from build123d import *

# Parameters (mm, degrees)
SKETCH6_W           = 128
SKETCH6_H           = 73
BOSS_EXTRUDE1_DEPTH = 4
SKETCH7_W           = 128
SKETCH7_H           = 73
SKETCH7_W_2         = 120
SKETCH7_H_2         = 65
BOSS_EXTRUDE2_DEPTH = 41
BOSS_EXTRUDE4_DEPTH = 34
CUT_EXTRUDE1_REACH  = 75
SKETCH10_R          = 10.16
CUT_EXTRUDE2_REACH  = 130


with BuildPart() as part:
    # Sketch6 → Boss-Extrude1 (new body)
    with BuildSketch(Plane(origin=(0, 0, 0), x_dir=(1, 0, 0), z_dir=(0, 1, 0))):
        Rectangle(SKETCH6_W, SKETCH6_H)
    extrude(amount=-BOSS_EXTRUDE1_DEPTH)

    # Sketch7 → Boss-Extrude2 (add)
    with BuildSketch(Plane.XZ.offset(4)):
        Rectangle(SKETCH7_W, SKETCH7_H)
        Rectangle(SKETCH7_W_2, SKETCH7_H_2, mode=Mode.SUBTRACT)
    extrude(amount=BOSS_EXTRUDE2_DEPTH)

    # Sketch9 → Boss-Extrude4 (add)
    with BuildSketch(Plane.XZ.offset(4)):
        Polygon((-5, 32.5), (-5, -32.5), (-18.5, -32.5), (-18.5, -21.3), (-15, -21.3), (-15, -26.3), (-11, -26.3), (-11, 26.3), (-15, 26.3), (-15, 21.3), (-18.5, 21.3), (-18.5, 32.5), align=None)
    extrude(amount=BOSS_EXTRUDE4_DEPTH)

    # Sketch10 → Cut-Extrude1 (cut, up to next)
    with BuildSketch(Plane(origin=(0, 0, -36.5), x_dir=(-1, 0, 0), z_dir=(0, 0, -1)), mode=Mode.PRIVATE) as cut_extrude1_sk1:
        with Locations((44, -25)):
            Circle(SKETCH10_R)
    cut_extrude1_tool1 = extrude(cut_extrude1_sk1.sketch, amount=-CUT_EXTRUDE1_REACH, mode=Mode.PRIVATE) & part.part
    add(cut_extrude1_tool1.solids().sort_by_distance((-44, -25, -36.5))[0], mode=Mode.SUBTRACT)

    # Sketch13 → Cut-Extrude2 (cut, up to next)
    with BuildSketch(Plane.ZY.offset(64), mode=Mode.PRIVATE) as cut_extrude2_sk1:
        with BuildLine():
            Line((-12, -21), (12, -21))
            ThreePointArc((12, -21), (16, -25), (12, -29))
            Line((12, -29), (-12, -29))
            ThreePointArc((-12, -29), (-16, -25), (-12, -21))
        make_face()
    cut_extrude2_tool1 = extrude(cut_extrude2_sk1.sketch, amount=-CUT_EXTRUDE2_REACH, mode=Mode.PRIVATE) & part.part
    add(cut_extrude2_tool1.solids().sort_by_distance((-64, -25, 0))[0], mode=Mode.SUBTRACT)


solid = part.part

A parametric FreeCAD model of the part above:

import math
import FreeCAD as App
import Part
import Sketcher
from FreeCAD import Vector

doc = App.newDocument("Part")
params = doc.addObject("Spreadsheet::Sheet", "Params")
for row, (alias, value) in enumerate([
    ("sketch1_width", "128 mm"),
    ("sketch1_height", "73 mm"),
    ("pad1_length", "4 mm"),
    ("sketch2_width", "128 mm"),
    ("sketch2_width2", "120 mm"),
    ("sketch2_height", "73 mm"),
    ("sketch2_height2", "65 mm"),
    ("pad2_length", "41 mm"),
    ("sketch3_width", "4 mm"),
    ("sketch3_height", "65 mm"),
    ("sketch3_height2", "5 mm"),
    ("sketch3_width2", "13.5 mm"),
    ("sketch3_width3", "3.5 mm"),
    ("pad3_length", "34 mm"),
    ("sketch4_diameter", "20.32 mm"),
    ("sketch5_radius", "4 mm"),
    ("sketch5_height", "24 mm"),
], start=1):
    params.set(f"A{row}", alias)
    params.set(f"B{row}", "=" + value)
    params.setAlias(f"B{row}", alias)

body = doc.addObject("PartDesign::Body", "Body")

# Sketch on XZ plane
sketch1 = body.newObject("Sketcher::SketchObject", "Sketch")
sketch1.AttachmentSupport = (doc.getObject("XZ_Plane"), [""])
sketch1.MapMode = "FlatFace"
sketch1.addGeometry([
    Part.LineSegment(Vector(-64, -36, 0), Vector(-64, 36, 0)),
    Part.LineSegment(Vector(-64, 36, 0), Vector(64, 36, 0)),
    Part.LineSegment(Vector(64, 36, 0), Vector(64, -36, 0)),
    Part.LineSegment(Vector(64, -36, 0), Vector(-64, -36, 0)),
], False)
sketch1.addConstraint([
    Sketcher.Constraint("Coincident", 0, 2, 1, 1),
    Sketcher.Constraint("Coincident", 1, 2, 2, 1),
    Sketcher.Constraint("Coincident", 2, 2, 3, 1),
    Sketcher.Constraint("Coincident", 3, 2, 0, 1),
    Sketcher.Constraint("Vertical", 0),
    Sketcher.Constraint("Horizontal", 1),
    Sketcher.Constraint("Vertical", 2),
    Sketcher.Constraint("Horizontal", 3),
    Sketcher.Constraint("Symmetric", 0, 2, 2, 2, -1, 1),
    Sketcher.Constraint("DistanceX", 1, 1, 1, 2, 128.0),
    Sketcher.Constraint("DistanceY", 0, 1, 0, 2, 73.0),
])
sketch1.setExpression("Constraints[9]", "Params.sketch1_width")
sketch1.setExpression("Constraints[10]", "Params.sketch1_height")
pad1 = body.newObject("PartDesign::Pad", "Pad")
pad1.Profile = sketch1
pad1.setExpression("Length", "Params.pad1_length")

# Sketch on XZ plane
sketch2 = body.newObject("Sketcher::SketchObject", "Sketch001")
sketch2.AttachmentSupport = (doc.getObject("XZ_Plane"), [""])
sketch2.MapMode = "FlatFace"
sketch2.AttachmentOffset = App.Placement(Vector(0, 0, 4), App.Rotation())
sketch2.addGeometry([
    Part.LineSegment(Vector(-64, 36, 0), Vector(-64, -36, 0)),  # 0
    Part.LineSegment(Vector(-64, -36, 0), Vector(64, -36, 0)),  # 1
    Part.LineSegment(Vector(64, -36, 0), Vector(64, 36, 0)),  # 2
    Part.LineSegment(Vector(64, 36, 0), Vector(-64, 36, 0)),  # 3
    Part.LineSegment(Vector(60, -32, 0), Vector(-60, -32, 0)),  # 4
    Part.LineSegment(Vector(-60, -32, 0), Vector(-60, 32, 0)),  # 5
    Part.LineSegment(Vector(-60, 32, 0), Vector(60, 32, 0)),  # 6
    Part.LineSegment(Vector(60, 32, 0), Vector(60, -32, 0)),  # 7
], False)
sketch2.addConstraint([
    Sketcher.Constraint("Coincident", 0, 2, 1, 1),
    Sketcher.Constraint("Coincident", 1, 2, 2, 1),
    Sketcher.Constraint("Coincident", 2, 2, 3, 1),
    Sketcher.Constraint("Coincident", 3, 2, 0, 1),
    Sketcher.Constraint("Coincident", 4, 2, 5, 1),
    Sketcher.Constraint("Coincident", 5, 2, 6, 1),
    Sketcher.Constraint("Coincident", 6, 2, 7, 1),
    Sketcher.Constraint("Coincident", 7, 2, 4, 1),
    Sketcher.Constraint("Vertical", 0),
    Sketcher.Constraint("Horizontal", 1),
    Sketcher.Constraint("Vertical", 2),
    Sketcher.Constraint("Horizontal", 3),
    Sketcher.Constraint("Horizontal", 4),
    Sketcher.Constraint("Vertical", 5),
    Sketcher.Constraint("Horizontal", 6),
    Sketcher.Constraint("Vertical", 7),
    Sketcher.Constraint("Symmetric", 0, 2, 2, 2, -1, 1),
    Sketcher.Constraint("Symmetric", 4, 2, 6, 2, -1, 1),
    Sketcher.Constraint("DistanceX", 1, 1, 1, 2, 128.0),
    Sketcher.Constraint("DistanceX", 4, 2, 4, 1, 120.0),
    Sketcher.Constraint("DistanceY", 0, 2, 0, 1, 73.0),
    Sketcher.Constraint("DistanceY", 5, 1, 5, 2, 65.0),
])
sketch2.setExpression("Constraints[18]", "Params.sketch2_width")
sketch2.setExpression("Constraints[19]", "Params.sketch2_width2")
sketch2.setExpression("Constraints[20]", "Params.sketch2_height")
sketch2.setExpression("Constraints[21]", "Params.sketch2_height2")
pad2 = body.newObject("PartDesign::Pad", "Pad001")
pad2.Profile = sketch2
pad2.setExpression("Length", "Params.pad2_length")

# Sketch on XZ plane
sketch3 = body.newObject("Sketcher::SketchObject", "Sketch002")
sketch3.AttachmentSupport = (doc.getObject("XZ_Plane"), [""])
sketch3.MapMode = "FlatFace"
sketch3.AttachmentOffset = App.Placement(Vector(0, 0, 4), App.Rotation())
sketch3.addGeometry([
    Part.LineSegment(Vector(-5, -32.5, 0), Vector(-5, 32.5, 0)),  # 0
    Part.LineSegment(Vector(-5, 32.5, 0), Vector(-18.5, 32.5, 0)),  # 1
    Part.LineSegment(Vector(-18.5, 32.5, 0), Vector(-18.5, 21.3, 0)),  # 2
    Part.LineSegment(Vector(-18.5, 21.3, 0), Vector(-15, 21.3, 0)),  # 3
    Part.LineSegment(Vector(-15, 21.3, 0), Vector(-15, 26.3, 0)),  # 4
    Part.LineSegment(Vector(-15, 26.3, 0), Vector(-11, 26.3, 0)),  # 5
    Part.LineSegment(Vector(-11, 26.3, 0), Vector(-11, -26.3, 0)),  # 6
    Part.LineSegment(Vector(-11, -26.3, 0), Vector(-15, -26.3, 0)),  # 7
    Part.LineSegment(Vector(-15, -26.3, 0), Vector(-15, -21.3, 0)),  # 8
    Part.LineSegment(Vector(-15, -21.3, 0), Vector(-18.5, -21.3, 0)),  # 9
    Part.LineSegment(Vector(-18.5, -21.3, 0), Vector(-18.5, -32.5, 0)),  # 10
    Part.LineSegment(Vector(-18.5, -32.5, 0), Vector(-5, -32.5, 0)),  # 11
], False)
sketch3.addConstraint([
    Sketcher.Constraint("Coincident", 0, 2, 1, 1),
    Sketcher.Constraint("Coincident", 1, 2, 2, 1),
    Sketcher.Constraint("Coincident", 2, 2, 3, 1),
    Sketcher.Constraint("Coincident", 3, 2, 4, 1),
    Sketcher.Constraint("Coincident", 4, 2, 5, 1),
    Sketcher.Constraint("Coincident", 5, 2, 6, 1),
    Sketcher.Constraint("Coincident", 6, 2, 7, 1),
    Sketcher.Constraint("Coincident", 7, 2, 8, 1),
    Sketcher.Constraint("Coincident", 8, 2, 9, 1),
    Sketcher.Constraint("Coincident", 9, 2, 10, 1),
    Sketcher.Constraint("Coincident", 10, 2, 11, 1),
    Sketcher.Constraint("Coincident", 11, 2, 0, 1),
    Sketcher.Constraint("Vertical", 0),
    Sketcher.Constraint("Horizontal", 1),
    Sketcher.Constraint("Vertical", 2),
    Sketcher.Constraint("Horizontal", 3),
    Sketcher.Constraint("Vertical", 4),
    Sketcher.Constraint("Horizontal", 5),
    Sketcher.Constraint("Vertical", 6),
    Sketcher.Constraint("Horizontal", 7),
    Sketcher.Constraint("Vertical", 8),
    Sketcher.Constraint("Horizontal", 9),
    Sketcher.Constraint("Vertical", 10),
    Sketcher.Constraint("Horizontal", 11),
    Sketcher.Constraint("Symmetric", 4, 2, 7, 2, -1),
    Sketcher.Constraint("Symmetric", 2, 2, 9, 2, -1),
    Sketcher.Constraint("Equal", 2, 10),
    Sketcher.Constraint("DistanceX", 5, 1, 5, 2, 4.0),
    Sketcher.Constraint("DistanceY", 0, 1, 0, 2, 65.0),
    Sketcher.Constraint("DistanceY", 4, 1, 4, 2, 5.0),
    Sketcher.Constraint("DistanceX", 1, 2, 1, 1, 13.5),
    Sketcher.Constraint("DistanceX", 3, 1, 3, 2, 3.5),
    Sketcher.Constraint("DistanceY", 2, 2, 2, 1, 11.2),
    Sketcher.Constraint("DistanceX", 0, 2, -1, 1, 5.0),
])
sketch3.setExpression("Constraints[27]", "Params.sketch3_width")
sketch3.setExpression("Constraints[28]", "Params.sketch3_height")
sketch3.setExpression("Constraints[29]", "Params.sketch3_height2")
sketch3.setExpression("Constraints[30]", "Params.sketch3_width2")
sketch3.setExpression("Constraints[31]", "Params.sketch3_width3")
pad3 = body.newObject("PartDesign::Pad", "Pad002")
pad3.Profile = sketch3
pad3.setExpression("Length", "Params.pad3_length")

# Sketch on XY plane
sketch4 = body.newObject("Sketcher::SketchObject", "Sketch003")
sketch4.AttachmentSupport = (doc.getObject("XY_Plane"), [""])
sketch4.MapMode = "FlatFace"
sketch4.AttachmentOffset = App.Placement(Vector(0, 0, -36.5), App.Rotation())
sketch4.addGeometry(Part.Circle(Vector(-44, -25, 0), Vector(0, 0, 1), 10), False)
sketch4.addConstraint([
    Sketcher.Constraint("Diameter", 0, 20.32),
    Sketcher.Constraint("DistanceX", 0, 3, -1, 1, 44.0),
    Sketcher.Constraint("DistanceY", 0, 3, -1, 1, 25.0),
])
sketch4.setExpression("Constraints[0]", "Params.sketch4_diameter")
pocket1 = body.newObject("PartDesign::Pocket", "Pocket")
pocket1.Profile = sketch4
pocket1.Type = "UpToFirst"
pocket1.Reversed = True

# Sketch on YZ plane
sketch5 = body.newObject("Sketcher::SketchObject", "Sketch004")
sketch5.AttachmentSupport = (doc.getObject("YZ_Plane"), [""])
sketch5.MapMode = "FlatFace"
sketch5.AttachmentOffset = App.Placement(Vector(0, 0, -64), App.Rotation())
sketch5.addGeometry([
    Part.LineSegment(Vector(-21, 12, 0), Vector(-21, -12, 0)),
    Part.ArcOfCircle(Part.Circle(Vector(-25, -12, 0), Vector(0, 0, 1), 4), math.radians(180), math.radians(360)),
    Part.LineSegment(Vector(-29, -12, 0), Vector(-29, 12, 0)),
    Part.ArcOfCircle(Part.Circle(Vector(-25, 12, 0), Vector(0, 0, 1), 4), math.radians(0), math.radians(180)),
], False)
sketch5.addConstraint([
    Sketcher.Constraint("Tangent", 0, 2, 1, 2),
    Sketcher.Constraint("Tangent", 1, 1, 2, 1),
    Sketcher.Constraint("Tangent", 2, 2, 3, 2),
    Sketcher.Constraint("Tangent", 3, 1, 0, 1),
    Sketcher.Constraint("Vertical", 0),
    Sketcher.Constraint("Vertical", 2),
    Sketcher.Constraint("Radius", 1, 4.0),
    Sketcher.Constraint("DistanceY", 0, 2, 0, 1, 24.0),
    Sketcher.Constraint("DistanceX", 1, 3, -1, 1, 25.0),
    Sketcher.Constraint("DistanceY", 1, 3, -1, 1, 12.0),
])
sketch5.setExpression("Constraints[6]", "Params.sketch5_radius")
sketch5.setExpression("Constraints[7]", "Params.sketch5_height")
pocket2 = body.newObject("PartDesign::Pocket", "Pocket001")
pocket2.Profile = sketch5
pocket2.Type = "UpToFirst"
pocket2.Reversed = True

doc.recompute()
